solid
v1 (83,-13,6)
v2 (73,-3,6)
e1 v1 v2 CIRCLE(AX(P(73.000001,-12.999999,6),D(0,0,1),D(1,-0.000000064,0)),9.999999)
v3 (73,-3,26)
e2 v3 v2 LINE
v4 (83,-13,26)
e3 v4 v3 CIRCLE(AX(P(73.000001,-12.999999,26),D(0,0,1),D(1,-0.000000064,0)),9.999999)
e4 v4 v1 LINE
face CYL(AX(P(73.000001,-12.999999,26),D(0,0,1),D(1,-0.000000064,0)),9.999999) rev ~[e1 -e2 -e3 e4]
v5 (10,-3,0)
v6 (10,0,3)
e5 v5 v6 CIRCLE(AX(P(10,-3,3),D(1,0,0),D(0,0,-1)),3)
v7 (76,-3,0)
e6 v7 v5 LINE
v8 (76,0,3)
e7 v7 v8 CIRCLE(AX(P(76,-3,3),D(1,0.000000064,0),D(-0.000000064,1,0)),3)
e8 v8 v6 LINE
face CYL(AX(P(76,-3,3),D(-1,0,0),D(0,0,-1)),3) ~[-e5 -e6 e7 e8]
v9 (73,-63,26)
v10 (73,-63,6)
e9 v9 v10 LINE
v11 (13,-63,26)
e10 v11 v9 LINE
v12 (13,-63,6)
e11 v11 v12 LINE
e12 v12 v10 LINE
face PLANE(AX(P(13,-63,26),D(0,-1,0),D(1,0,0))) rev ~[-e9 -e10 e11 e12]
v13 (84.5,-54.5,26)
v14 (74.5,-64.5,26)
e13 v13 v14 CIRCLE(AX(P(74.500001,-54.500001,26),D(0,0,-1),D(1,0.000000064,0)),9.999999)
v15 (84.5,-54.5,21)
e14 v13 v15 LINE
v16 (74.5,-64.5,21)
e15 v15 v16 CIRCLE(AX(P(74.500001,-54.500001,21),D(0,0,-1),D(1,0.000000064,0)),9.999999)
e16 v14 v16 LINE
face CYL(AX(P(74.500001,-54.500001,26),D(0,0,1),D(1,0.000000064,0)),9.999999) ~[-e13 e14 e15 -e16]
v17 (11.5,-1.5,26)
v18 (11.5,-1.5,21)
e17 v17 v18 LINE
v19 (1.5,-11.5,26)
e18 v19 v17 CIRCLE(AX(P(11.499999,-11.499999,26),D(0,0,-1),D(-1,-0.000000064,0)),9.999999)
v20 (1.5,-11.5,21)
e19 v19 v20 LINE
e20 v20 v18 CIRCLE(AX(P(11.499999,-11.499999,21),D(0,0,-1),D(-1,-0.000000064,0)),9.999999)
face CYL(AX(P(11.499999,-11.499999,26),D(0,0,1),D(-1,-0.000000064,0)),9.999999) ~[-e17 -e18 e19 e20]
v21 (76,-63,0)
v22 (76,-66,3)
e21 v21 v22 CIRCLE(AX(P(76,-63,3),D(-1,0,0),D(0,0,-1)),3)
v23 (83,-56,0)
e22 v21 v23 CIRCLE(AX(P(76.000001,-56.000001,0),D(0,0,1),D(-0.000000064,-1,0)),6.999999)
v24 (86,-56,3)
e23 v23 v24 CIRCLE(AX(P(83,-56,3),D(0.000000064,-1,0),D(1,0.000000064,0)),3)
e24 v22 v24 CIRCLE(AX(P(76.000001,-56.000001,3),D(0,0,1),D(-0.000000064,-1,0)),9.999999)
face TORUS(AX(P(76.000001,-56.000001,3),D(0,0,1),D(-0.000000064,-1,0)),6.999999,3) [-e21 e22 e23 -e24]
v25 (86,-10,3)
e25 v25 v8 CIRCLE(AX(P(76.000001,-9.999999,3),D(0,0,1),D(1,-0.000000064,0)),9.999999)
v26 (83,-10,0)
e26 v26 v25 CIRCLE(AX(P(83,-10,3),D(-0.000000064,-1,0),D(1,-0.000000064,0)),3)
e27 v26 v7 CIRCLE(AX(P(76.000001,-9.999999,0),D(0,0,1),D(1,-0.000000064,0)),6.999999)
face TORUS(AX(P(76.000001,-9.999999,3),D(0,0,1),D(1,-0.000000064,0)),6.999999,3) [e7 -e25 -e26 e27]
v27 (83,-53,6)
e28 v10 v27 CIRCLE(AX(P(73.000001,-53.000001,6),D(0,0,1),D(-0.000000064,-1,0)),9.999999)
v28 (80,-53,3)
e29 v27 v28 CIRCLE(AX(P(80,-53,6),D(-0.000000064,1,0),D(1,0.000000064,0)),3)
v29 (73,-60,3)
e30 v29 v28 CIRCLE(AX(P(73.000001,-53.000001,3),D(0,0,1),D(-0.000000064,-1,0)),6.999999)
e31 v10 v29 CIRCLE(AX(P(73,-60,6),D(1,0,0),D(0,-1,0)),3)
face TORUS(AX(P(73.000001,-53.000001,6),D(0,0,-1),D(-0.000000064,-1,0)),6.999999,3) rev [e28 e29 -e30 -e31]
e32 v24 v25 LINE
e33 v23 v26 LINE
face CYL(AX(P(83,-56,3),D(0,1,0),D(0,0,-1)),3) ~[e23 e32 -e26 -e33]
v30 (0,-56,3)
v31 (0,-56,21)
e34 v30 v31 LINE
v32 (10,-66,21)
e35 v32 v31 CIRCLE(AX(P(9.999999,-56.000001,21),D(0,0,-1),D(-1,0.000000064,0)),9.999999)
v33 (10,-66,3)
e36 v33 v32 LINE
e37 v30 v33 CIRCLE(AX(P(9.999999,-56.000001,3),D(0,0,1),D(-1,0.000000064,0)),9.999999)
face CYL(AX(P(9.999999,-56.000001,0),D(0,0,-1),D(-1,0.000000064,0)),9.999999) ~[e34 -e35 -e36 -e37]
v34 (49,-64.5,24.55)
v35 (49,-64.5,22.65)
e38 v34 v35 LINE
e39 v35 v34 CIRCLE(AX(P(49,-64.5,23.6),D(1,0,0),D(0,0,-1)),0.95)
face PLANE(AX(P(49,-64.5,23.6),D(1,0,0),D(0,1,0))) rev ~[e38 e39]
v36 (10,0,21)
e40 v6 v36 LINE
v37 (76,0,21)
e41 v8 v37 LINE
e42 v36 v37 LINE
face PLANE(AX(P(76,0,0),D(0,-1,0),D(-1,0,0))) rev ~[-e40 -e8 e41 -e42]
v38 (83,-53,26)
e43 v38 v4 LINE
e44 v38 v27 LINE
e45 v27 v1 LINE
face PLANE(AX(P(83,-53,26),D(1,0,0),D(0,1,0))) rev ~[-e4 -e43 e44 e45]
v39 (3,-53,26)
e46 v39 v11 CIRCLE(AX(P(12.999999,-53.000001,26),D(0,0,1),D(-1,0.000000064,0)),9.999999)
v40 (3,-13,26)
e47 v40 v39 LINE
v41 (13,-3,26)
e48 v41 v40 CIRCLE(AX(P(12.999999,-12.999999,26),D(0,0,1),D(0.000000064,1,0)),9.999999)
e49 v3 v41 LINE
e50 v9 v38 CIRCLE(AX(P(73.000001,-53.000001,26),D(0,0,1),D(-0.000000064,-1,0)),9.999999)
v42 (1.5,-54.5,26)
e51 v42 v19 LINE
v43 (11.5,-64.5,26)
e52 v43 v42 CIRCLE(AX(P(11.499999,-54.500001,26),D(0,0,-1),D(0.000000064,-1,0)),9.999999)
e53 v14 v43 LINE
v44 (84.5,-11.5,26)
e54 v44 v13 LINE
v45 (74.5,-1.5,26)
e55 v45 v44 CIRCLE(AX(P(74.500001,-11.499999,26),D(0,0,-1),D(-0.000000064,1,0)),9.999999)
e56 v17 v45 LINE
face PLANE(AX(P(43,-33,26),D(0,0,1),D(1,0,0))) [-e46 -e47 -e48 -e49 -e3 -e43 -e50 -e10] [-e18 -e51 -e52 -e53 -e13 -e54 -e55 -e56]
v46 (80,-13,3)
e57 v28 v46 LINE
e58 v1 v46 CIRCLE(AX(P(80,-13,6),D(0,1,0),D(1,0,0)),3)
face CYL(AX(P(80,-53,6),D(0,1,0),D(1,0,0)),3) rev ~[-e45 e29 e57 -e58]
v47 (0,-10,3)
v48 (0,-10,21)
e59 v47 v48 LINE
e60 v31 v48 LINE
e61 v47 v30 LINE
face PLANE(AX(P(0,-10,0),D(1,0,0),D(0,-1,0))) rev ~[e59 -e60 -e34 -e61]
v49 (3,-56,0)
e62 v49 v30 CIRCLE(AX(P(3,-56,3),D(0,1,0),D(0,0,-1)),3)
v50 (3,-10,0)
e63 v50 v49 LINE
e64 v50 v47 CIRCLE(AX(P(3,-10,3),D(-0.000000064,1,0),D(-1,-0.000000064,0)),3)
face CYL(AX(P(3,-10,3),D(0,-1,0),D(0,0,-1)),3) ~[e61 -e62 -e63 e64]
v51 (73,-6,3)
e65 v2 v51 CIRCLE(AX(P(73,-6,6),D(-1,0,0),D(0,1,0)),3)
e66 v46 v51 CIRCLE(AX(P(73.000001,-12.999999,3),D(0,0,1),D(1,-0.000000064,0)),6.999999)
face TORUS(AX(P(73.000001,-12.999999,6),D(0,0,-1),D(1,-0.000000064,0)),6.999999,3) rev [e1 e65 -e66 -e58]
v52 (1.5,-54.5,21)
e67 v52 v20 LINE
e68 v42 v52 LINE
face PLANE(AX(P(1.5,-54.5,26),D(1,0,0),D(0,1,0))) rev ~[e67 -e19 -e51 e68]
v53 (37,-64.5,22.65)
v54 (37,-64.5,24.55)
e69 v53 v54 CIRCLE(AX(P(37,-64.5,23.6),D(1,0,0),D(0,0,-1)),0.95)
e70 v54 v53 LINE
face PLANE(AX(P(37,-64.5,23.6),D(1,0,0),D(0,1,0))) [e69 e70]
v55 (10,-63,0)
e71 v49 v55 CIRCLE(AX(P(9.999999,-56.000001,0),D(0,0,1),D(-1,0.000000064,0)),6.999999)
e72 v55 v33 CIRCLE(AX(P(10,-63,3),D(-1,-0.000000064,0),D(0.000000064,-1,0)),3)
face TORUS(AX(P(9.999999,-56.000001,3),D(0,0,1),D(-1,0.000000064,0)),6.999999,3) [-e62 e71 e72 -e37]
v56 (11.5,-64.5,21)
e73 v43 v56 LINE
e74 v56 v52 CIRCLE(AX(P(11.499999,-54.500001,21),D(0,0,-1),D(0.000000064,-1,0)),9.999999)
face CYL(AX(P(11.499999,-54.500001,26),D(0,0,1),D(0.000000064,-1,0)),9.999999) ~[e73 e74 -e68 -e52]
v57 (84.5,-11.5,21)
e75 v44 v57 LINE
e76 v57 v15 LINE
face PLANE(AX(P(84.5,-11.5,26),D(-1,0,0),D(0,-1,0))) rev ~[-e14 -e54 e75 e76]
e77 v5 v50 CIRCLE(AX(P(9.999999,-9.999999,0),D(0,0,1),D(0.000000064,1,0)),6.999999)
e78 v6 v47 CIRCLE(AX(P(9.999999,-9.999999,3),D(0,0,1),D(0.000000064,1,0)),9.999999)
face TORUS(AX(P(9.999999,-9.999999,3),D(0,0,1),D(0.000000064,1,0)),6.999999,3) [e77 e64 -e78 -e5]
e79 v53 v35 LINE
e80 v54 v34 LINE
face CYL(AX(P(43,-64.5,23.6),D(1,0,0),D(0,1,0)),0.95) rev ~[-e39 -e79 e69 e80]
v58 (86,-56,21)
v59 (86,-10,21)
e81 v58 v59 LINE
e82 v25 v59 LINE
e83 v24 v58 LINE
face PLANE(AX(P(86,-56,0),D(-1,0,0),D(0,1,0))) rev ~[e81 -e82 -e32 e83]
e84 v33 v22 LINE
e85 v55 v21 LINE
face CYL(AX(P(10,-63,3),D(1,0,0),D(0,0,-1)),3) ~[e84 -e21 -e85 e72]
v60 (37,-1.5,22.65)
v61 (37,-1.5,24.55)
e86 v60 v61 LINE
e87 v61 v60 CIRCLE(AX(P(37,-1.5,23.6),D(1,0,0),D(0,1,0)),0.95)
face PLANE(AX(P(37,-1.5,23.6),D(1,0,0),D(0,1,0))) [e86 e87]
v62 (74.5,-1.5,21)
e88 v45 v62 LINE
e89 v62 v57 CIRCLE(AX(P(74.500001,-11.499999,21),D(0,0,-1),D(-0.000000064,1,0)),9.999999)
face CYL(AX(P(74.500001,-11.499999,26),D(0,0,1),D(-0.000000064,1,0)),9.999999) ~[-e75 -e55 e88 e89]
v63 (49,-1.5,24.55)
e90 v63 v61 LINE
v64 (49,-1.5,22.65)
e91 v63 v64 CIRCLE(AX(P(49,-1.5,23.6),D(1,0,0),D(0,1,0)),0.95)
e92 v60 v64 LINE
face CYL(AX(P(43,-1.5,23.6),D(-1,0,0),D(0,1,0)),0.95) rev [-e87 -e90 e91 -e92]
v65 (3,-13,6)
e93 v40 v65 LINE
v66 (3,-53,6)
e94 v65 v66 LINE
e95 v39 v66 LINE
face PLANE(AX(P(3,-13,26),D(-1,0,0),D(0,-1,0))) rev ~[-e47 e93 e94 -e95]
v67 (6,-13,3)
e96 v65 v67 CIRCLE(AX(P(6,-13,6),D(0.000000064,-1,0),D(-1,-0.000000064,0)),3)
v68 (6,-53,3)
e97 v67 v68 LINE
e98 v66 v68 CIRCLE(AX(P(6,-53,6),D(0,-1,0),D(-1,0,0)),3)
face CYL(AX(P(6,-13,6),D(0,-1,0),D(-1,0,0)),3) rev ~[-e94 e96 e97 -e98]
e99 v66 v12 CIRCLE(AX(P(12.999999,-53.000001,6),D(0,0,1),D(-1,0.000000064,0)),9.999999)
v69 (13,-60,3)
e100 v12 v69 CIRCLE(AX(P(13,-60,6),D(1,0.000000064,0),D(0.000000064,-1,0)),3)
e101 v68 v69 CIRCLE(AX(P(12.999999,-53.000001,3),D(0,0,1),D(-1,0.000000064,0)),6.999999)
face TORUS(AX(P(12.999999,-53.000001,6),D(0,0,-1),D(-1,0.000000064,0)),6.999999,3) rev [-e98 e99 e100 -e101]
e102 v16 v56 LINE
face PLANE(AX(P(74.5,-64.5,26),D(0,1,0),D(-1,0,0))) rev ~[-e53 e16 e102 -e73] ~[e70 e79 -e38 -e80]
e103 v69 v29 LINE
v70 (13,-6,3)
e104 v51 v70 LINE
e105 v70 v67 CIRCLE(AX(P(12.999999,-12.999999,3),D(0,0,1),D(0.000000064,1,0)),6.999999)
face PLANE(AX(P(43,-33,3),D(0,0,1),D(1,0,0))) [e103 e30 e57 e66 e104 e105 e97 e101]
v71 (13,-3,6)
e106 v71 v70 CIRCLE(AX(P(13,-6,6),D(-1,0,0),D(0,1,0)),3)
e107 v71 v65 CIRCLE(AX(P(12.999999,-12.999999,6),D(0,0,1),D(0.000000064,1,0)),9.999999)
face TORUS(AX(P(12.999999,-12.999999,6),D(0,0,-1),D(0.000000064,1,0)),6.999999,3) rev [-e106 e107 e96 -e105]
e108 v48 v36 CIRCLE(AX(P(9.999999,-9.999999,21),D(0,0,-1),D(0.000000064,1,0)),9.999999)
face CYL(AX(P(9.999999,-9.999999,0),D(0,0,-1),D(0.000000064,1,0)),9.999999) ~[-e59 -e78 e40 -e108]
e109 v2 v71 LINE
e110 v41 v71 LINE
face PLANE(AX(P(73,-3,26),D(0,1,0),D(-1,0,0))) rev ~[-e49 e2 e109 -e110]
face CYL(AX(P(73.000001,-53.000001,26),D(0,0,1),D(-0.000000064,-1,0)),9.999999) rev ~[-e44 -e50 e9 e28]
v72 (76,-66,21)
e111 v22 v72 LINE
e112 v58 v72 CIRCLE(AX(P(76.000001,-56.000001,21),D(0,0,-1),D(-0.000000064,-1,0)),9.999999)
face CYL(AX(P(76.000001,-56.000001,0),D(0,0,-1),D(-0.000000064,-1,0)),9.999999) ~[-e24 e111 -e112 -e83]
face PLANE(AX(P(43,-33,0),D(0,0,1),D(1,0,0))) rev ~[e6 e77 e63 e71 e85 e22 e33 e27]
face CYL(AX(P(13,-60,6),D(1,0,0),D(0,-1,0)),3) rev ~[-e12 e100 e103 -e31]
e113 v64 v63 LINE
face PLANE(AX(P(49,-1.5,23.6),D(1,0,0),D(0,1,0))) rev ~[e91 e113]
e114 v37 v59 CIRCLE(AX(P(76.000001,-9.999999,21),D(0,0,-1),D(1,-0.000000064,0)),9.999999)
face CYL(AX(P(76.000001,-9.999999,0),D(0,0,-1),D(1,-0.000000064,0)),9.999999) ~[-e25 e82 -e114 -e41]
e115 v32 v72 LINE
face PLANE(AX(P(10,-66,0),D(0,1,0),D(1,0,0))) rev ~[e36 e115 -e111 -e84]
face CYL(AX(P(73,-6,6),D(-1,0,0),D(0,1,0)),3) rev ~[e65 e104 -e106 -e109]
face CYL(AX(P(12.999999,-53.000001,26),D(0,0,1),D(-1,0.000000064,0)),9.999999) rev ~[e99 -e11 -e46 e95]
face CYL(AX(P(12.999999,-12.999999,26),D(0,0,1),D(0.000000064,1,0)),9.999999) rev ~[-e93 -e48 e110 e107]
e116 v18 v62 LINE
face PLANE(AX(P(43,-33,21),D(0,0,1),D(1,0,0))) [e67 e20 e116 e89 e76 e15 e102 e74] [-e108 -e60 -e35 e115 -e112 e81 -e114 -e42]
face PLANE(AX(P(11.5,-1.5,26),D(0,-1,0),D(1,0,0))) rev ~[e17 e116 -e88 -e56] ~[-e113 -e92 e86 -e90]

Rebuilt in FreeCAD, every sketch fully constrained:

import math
import FreeCAD as App
import Part
import Sketcher
from FreeCAD import Vector
Q = App.Units.Quantity


def edges_at(feature, points):
    """Names of the edges that pass closest to the given points."""
    edges = feature.Shape.Edges
    near = lambda p: min(range(len(edges)), key=lambda i: edges[i].distToShape(Part.Vertex(*p))[0])
    return sorted({f"Edge{near(p) + 1}" for p in points})

doc = App.newDocument("Part")
body = doc.addObject("PartDesign::Body", "Body")

sketch1 = body.newObject("Sketcher::SketchObject", "Sketch")
sketch1.AttachmentSupport = (doc.getObject("XY_Plane"), [""])
sketch1.MapMode = "FlatFace"
sketch1.addGeometry([
    Part.LineSegment(Vector(76, 0, 0), Vector(10, 0, 0)),
    Part.ArcOfCircle(Part.Circle(Vector(10, -10, 0), Vector(0, 0, 1), 10), math.radians(90), math.radians(180)),
    Part.LineSegment(Vector(0, -10, 0), Vector(0, -56, 0)),
    Part.ArcOfCircle(Part.Circle(Vector(10, -56, 0), Vector(0, 0, 1), 10), math.radians(180), math.radians(270)),
    Part.LineSegment(Vector(10, -66, 0), Vector(76, -66, 0)),
    Part.ArcOfCircle(Part.Circle(Vector(76, -56, 0), Vector(0, 0, 1), 10), math.radians(-90), math.radians(0)),
    Part.LineSegment(Vector(86, -56, 0), Vector(86, -10, 0)),
    Part.ArcOfCircle(Part.Circle(Vector(76, -10, 0), Vector(0, 0, 1), 10), math.radians(0), math.radians(90)),
], False)
sketch1.addConstraint([
    Sketcher.Constraint("Tangent", 0, 2, 1, 1),
    Sketcher.Constraint("Tangent", 1, 2, 2, 1),
    Sketcher.Constraint("Tangent", 2, 2, 3, 1),
    Sketcher.Constraint("Tangent", 3, 2, 4, 1),
    Sketcher.Constraint("Tangent", 4, 2, 5, 1),
    Sketcher.Constraint("Tangent", 5, 2, 6, 1),
    Sketcher.Constraint("Tangent", 6, 2, 7, 1),
    Sketcher.Constraint("Tangent", 7, 2, 0, 1),
    Sketcher.Constraint("Horizontal", 0),
    Sketcher.Constraint("Vertical", 2),
    Sketcher.Constraint("Horizontal", 4),
    Sketcher.Constraint("Vertical", 6),
    Sketcher.Constraint("Equal", 1, 3),
    Sketcher.Constraint("Equal", 3, 5),
    Sketcher.Constraint("Equal", 5, 7),
    Sketcher.Constraint("PointOnObject", 0, 2, -1),
    Sketcher.Constraint("PointOnObject", 1, 2, -2),
    Sketcher.Constraint("Radius", 1, Q("9.999999 mm")),
    Sketcher.Constraint("DistanceX", 0, 2, 0, 1, Q("66 mm")),
    Sketcher.Constraint("DistanceY", 2, 2, 2, 1, Q("46 mm")),
])
pad1 = body.newObject("PartDesign::Pad", "Pad")
pad1.Profile = sketch1
pad1.Length = 26

sketch2 = body.newObject("Sketcher::SketchObject", "Sketch001")
sketch2.AttachmentSupport = (doc.getObject("XY_Plane"), [""])
sketch2.MapMode = "FlatFace"
sketch2.AttachmentOffset = App.Placement(Vector(0, 0, 26), App.Rotation())
sketch2.addGeometry([
    Part.LineSegment(Vector(73, -3, 0), Vector(13, -3, 0)),
    Part.ArcOfCircle(Part.Circle(Vector(13, -13, 0), Vector(0, 0, 1), 10), math.radians(90), math.radians(180)),
    Part.LineSegment(Vector(3, -13, 0), Vector(3, -53, 0)),
    Part.ArcOfCircle(Part.Circle(Vector(13, -53, 0), Vector(0, 0, 1), 10), math.radians(180), math.radians(270)),
    Part.LineSegment(Vector(13, -63, 0), Vector(73, -63, 0)),
    Part.ArcOfCircle(Part.Circle(Vector(73, -53, 0), Vector(0, 0, 1), 10), math.radians(-90), math.radians(0)),
    Part.LineSegment(Vector(83, -53, 0), Vector(83, -13, 0)),
    Part.ArcOfCircle(Part.Circle(Vector(73, -13, 0), Vector(0, 0, 1), 10), math.radians(0), math.radians(90)),
], False)
sketch2.addConstraint([
    Sketcher.Constraint("Tangent", 0, 2, 1, 1),
    Sketcher.Constraint("Tangent", 1, 2, 2, 1),
    Sketcher.Constraint("Tangent", 2, 2, 3, 1),
    Sketcher.Constraint("Tangent", 3, 2, 4, 1),
    Sketcher.Constraint("Tangent", 4, 2, 5, 1),
    Sketcher.Constraint("Tangent", 5, 2, 6, 1),
    Sketcher.Constraint("Tangent", 6, 2, 7, 1),
    Sketcher.Constraint("Tangent", 7, 2, 0, 1),
    Sketcher.Constraint("Horizontal", 0),
    Sketcher.Constraint("Vertical", 2),
    Sketcher.Constraint("Horizontal", 4),
    Sketcher.Constraint("Vertical", 6),
    Sketcher.Constraint("Equal", 1, 3),
    Sketcher.Constraint("Equal", 3, 5),
    Sketcher.Constraint("Equal", 5, 7),
    Sketcher.Constraint("Radius", 1, Q("9.999999 mm")),
    Sketcher.Constraint("DistanceX", 0, 2, 0, 1, Q("60 mm")),
    Sketcher.Constraint("DistanceY", 2, 2, 2, 1, Q("40 mm")),
    Sketcher.Constraint("DistanceX", -1, 1, 1, 3, Q("12.999999 mm")),
    Sketcher.Constraint("DistanceY", 1, 3, -1, 1, Q("12.999999 mm")),
])
pocket1 = body.newObject("PartDesign::Pocket", "Pocket")
pocket1.Profile = sketch2
pocket1.Length = 23

sketch3 = body.newObject("Sketcher::SketchObject", "Sketch002")
sketch3.AttachmentSupport = (doc.getObject("XY_Plane"), [""])
sketch3.MapMode = "FlatFace"
sketch3.AttachmentOffset = App.Placement(Vector(0, 0, 26), App.Rotation())
sketch3.addGeometry([
    Part.LineSegment(Vector(0, 0, 0), Vector(0, -66, 0)),
    Part.LineSegment(Vector(0, -66, 0), Vector(86, -66, 0)),
    Part.LineSegment(Vector(86, -66, 0), Vector(86, 0, 0)),
    Part.LineSegment(Vector(86, 0, 0), Vector(0, 0, 0)),
    Part.LineSegment(Vector(2, -54, 0), Vector(2, -12, 0)),
    Part.ArcOfCircle(Part.Circle(Vector(11, -11, 0), Vector(0, 0, 1), 10), math.radians(90), math.radians(180)),
    Part.LineSegment(Vector(12, -2, 0), Vector(74, -2, 0)),
    Part.ArcOfCircle(Part.Circle(Vector(75, -11, 0), Vector(0, 0, 1), 10), math.radians(0), math.radians(90)),
    Part.LineSegment(Vector(84, -12, 0), Vector(84, -54, 0)),
    Part.ArcOfCircle(Part.Circle(Vector(75, -55, 0), Vector(0, 0, 1), 10), math.radians(-90), math.radians(0)),
    Part.LineSegment(Vector(74, -64, 0), Vector(12, -64, 0)),
    Part.ArcOfCircle(Part.Circle(Vector(11, -55, 0), Vector(0, 0, 1), 10), math.radians(180), math.radians(270)),
], False)
sketch3.addConstraint([
    Sketcher.Constraint("Coincident", 0, 2, 1, 1),
    Sketcher.Constraint("Coincident", 1, 2, 2, 1),
    Sketcher.Constraint("Coincident", 2, 2, 3, 1),
    Sketcher.Constraint("Coincident", 3, 2, 0, 1),
    Sketcher.Constraint("Tangent", 4, 2, 5, 2),
    Sketcher.Constraint("Tangent", 5, 1, 6, 1),
    Sketcher.Constraint("Tangent", 6, 2, 7, 2),
    Sketcher.Constraint("Tangent", 7, 1, 8, 1),
    Sketcher.Constraint("Tangent", 8, 2, 9, 2),
    Sketcher.Constraint("Tangent", 9, 1, 10, 1),
    Sketcher.Constraint("Tangent", 10, 2, 11, 2),
    Sketcher.Constraint("Tangent", 11, 1, 4, 1),
    Sketcher.Constraint("Vertical", 0),
    Sketcher.Constraint("Horizontal", 1),
    Sketcher.Constraint("Vertical", 2),
    Sketcher.Constraint("Horizontal", 3),
    Sketcher.Constraint("Vertical", 4),
    Sketcher.Constraint("Horizontal", 6),
    Sketcher.Constraint("Vertical", 8),
    Sketcher.Constraint("Horizontal", 10),
    Sketcher.Constraint("Coincident", 3, 2, -1, 1),
    Sketcher.Constraint("Equal", 5, 7),
    Sketcher.Constraint("Equal", 7, 9),
    Sketcher.Constraint("Equal", 9, 11),
    Sketcher.Constraint("Radius", 5, Q("9.999999 mm")),
    Sketcher.Constraint("DistanceX", 1, 1, 1, 2, Q("86 mm")),
    Sketcher.Constraint("DistanceX", 6, 1, 6, 2, Q("63 mm")),
    Sketcher.Constraint("DistanceY", 0, 2, 0, 1, Q("66 mm")),
    Sketcher.Constraint("DistanceY", 4, 1, 4, 2, Q("43 mm")),
    Sketcher.Constraint("DistanceX", -1, 1, 5, 3, Q("11.499999 mm")),
    Sketcher.Constraint("DistanceY", 5, 3, -1, 1, Q("11.499999 mm")),
])
pocket2 = body.newObject("PartDesign::Pocket", "Pocket001")
pocket2.Profile = sketch3
pocket2.Length = 5
doc.recompute()

fillet = body.newObject("PartDesign::Fillet", "Fillet")
fillet.Base = (pocket2, edges_at(pocket2, [
    (83.071, -2.929, 0),
    (43, 0, 0),
    (2.929, -2.929, 0),
    (0, -33, 0),
    (2.929, -63.071, 0),
    (43, -66, 0),
    (83.071, -63.071, 0),
    (86, -33, 0),
]))
fillet.Radius = 3
doc.recompute()

fillet2 = body.newObject("PartDesign::Fillet", "Fillet001")
fillet2.Base = (fillet, edges_at(fillet, [
    (43, -3, 3),
    (5.929, -5.929, 3),
    (3, -33, 3),
    (5.929, -60.071, 3),
    (43, -63, 3),
    (80.071, -60.071, 3),
    (83, -33, 3),
    (80.071, -5.929, 3),
]))
fillet2.Radius = 3

sketch4 = body.newObject("Sketcher::SketchObject", "Sketch003")
sketch4.AttachmentSupport = (doc.getObject("YZ_Plane"), [""])
sketch4.MapMode = "FlatFace"
sketch4.AttachmentOffset = App.Placement(Vector(0, 0, 43), App.Rotation())
sketch4.addGeometry([
    Part.Circle(Vector(-1.5, 23.6, 0), Vector(0, 0, 1), 0.9),
    Part.Circle(Vector(-64.5, 23.6, 0), Vector(0, 0, 1), 0.9),
], False)
sketch4.addConstraint([
    Sketcher.Constraint("Equal", 0, 1),
    Sketcher.Constraint("Horizontal", 0, 3, 1, 3),
    Sketcher.Constraint("Diameter", 0, Q("1.9 mm")),
    Sketcher.Constraint("DistanceX", 1, 3, 0, 3, Q("63 mm")),
    Sketcher.Constraint("DistanceX", 0, 3, -1, 1, Q("1.5 mm")),
    Sketcher.Constraint("DistanceY", -1, 1, 0, 3, Q("23.6 mm")),
])
pocket3 = body.newObject("PartDesign::Pocket", "Pocket002")
pocket3.Profile = sketch4
pocket3.Length = 12
pocket3.Midplane = True

doc.recompute()
